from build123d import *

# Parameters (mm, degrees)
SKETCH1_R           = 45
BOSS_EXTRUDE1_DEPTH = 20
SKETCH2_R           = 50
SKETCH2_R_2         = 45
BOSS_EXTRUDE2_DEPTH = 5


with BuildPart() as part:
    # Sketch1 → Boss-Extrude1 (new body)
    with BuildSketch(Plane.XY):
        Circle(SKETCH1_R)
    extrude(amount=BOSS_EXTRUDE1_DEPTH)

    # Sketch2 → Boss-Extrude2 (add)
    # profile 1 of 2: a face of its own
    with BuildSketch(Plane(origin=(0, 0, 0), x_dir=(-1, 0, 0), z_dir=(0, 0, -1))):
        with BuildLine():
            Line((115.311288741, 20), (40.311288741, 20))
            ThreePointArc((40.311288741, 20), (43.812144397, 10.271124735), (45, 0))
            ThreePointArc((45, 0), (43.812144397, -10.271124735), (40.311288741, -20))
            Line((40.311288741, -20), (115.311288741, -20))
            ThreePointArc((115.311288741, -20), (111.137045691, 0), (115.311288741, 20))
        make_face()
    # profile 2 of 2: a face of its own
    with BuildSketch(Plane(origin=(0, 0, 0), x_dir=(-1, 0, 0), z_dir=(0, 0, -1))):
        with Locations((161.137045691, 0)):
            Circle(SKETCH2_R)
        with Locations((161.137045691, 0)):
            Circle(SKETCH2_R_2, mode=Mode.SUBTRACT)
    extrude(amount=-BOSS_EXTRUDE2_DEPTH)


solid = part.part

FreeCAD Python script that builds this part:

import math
import FreeCAD as App
import Part
import Sketcher

V = App.Vector
Q = App.Units.Quantity

doc = App.newDocument("Part")
body = doc.addObject("PartDesign::Body", "Body")

sketch1 = doc.addObject("Sketcher::SketchObject", "Sketch")
body.addObject(sketch1)
sketch1.AttachmentSupport = (doc.XY_Plane, [""])
sketch1.MapMode = "FlatFace"
sketch1.addGeometry(Part.Circle(V(0, 0, 0), V(0, 0, 1), 45), False)
sketch1.addConstraint(Sketcher.Constraint("Coincident", 0, 3, -1, 1))
sketch1.addConstraint(Sketcher.Constraint("Diameter", 0, Q("90 mm")))
pad1 = doc.addObject("PartDesign::Pad", "Pad")
body.addObject(pad1)
pad1.Profile = sketch1
pad1.Length = 20

sketch2 = doc.addObject("Sketcher::SketchObject", "Sketch001")
body.addObject(sketch2)
sketch2.AttachmentSupport = (doc.XY_Plane, [""])
sketch2.MapMode = "FlatFace"
sketch2.addGeometry(Part.LineSegment(V(-115, 20, 0), V(-40, 20, 0)), False)
sketch2.addGeometry(Part.ArcOfCircle(Part.Circle(V(0, 0, 0), V(0, 0, 1), 45), math.radians(154), math.radians(180)), False)
sketch2.addGeometry(Part.ArcOfCircle(Part.Circle(V(0, 0, 0), V(0, 0, 1), 45), math.radians(180), math.radians(206)), False)
sketch2.addGeometry(Part.LineSegment(V(-40, -20, 0), V(-115, -20, 0)), False)
sketch2.addGeometry(Part.ArcOfCircle(Part.Circle(V(-161, 0, 0), V(0, 0, 1), 50), math.radians(24), math.radians(336)), False)
sketch2.addGeometry(Part.Circle(V(-161, 0, 0), V(0, 0, 1), 45), False)
sketch2.addConstraint(Sketcher.Constraint("Coincident", 0, 2, 1, 1))
sketch2.addConstraint(Sketcher.Constraint("Tangent", 1, 2, 2, 1))
sketch2.addConstraint(Sketcher.Constraint("Coincident", 2, 2, 3, 1))
sketch2.addConstraint(Sketcher.Constraint("Coincident", 3, 2, 4, 2))
sketch2.addConstraint(Sketcher.Constraint("Coincident", 4, 1, 0, 1))
sketch2.addConstraint(Sketcher.Constraint("Horizontal", 0))
sketch2.addConstraint(Sketcher.Constraint("Horizontal", 3))
sketch2.addConstraint(Sketcher.Constraint("Coincident", 1, 3, -1, 1))
sketch2.addConstraint(Sketcher.Constraint("Coincident", 5, 3, 4, 3))
sketch2.addConstraint(Sketcher.Constraint("Equal", 1, 2))
sketch2.addConstraint(Sketcher.Constraint("Equal", 2, 5))
sketch2.addConstraint(Sketcher.Constraint("Symmetric", 3, 2, 4, 1, -1))
sketch2.addConstraint(Sketcher.Constraint("PointOnObject", 1, 2, -1))
sketch2.addConstraint(Sketcher.Constraint("Diameter", 5, Q("90 mm")))
sketch2.addConstraint(Sketcher.Constraint("Radius", 4, Q("50 mm")))
sketch2.addConstraint(Sketcher.Constraint("DistanceX", 0, 1, 0, 2, Q("75 mm")))
sketch2.addConstraint(Sketcher.Constraint("DistanceY", -1, 1, 0, 2, Q("20 mm")))
pad2 = doc.addObject("PartDesign::Pad", "Pad001")
body.addObject(pad2)
pad2.Profile = sketch2
pad2.Length = 5

doc.recompute()
